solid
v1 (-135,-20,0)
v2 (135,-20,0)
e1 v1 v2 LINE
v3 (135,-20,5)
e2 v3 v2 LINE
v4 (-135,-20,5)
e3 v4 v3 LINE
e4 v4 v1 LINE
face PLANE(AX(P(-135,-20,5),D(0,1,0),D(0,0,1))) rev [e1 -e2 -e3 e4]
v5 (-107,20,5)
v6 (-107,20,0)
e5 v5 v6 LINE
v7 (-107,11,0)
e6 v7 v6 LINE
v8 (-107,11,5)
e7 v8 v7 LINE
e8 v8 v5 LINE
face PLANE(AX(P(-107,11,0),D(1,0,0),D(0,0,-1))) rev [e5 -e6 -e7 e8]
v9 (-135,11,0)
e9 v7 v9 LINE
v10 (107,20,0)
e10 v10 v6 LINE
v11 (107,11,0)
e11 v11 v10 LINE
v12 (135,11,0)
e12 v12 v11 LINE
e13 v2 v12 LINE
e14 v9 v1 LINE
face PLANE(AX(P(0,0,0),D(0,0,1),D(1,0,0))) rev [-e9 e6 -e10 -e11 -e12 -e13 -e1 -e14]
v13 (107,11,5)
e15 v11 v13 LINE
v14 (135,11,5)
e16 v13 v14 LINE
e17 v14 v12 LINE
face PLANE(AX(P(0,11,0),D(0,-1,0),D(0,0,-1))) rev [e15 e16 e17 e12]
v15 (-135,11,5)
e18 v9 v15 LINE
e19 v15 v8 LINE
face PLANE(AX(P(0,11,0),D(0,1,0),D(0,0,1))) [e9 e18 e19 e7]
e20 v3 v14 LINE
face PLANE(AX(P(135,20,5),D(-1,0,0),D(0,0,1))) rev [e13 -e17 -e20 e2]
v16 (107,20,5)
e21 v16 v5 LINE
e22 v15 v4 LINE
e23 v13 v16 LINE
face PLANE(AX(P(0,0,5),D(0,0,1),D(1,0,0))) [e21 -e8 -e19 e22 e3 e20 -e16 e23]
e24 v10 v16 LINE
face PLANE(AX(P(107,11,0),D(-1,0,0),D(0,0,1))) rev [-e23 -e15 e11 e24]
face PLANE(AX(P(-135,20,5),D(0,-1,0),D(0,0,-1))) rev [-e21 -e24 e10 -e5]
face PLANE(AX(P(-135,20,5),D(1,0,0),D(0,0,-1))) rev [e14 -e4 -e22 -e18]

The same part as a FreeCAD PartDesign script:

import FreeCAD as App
import Part
import Sketcher
from FreeCAD import Vector
Q = App.Units.Quantity

doc = App.newDocument("Part")
body = doc.addObject("PartDesign::Body", "Body")

# Sketch on XY plane
sketch1 = body.newObject("Sketcher::SketchObject", "Sketch")
sketch1.AttachmentSupport = (doc.getObject("XY_Plane"), [""])
sketch1.MapMode = "FlatFace"
sketch1.addGeometry([
    Part.LineSegment(Vector(-135, 20, 0), Vector(-135, -20, 0)),
    Part.LineSegment(Vector(-135, -20, 0), Vector(135, -20, 0)),
    Part.LineSegment(Vector(135, -20, 0), Vector(135, 20, 0)),
    Part.LineSegment(Vector(135, 20, 0), Vector(-135, 20, 0)),
], False)
sketch1.addConstraint([
    Sketcher.Constraint("Coincident", 0, 2, 1, 1),
    Sketcher.Constraint("Coincident", 1, 2, 2, 1),
    Sketcher.Constraint("Coincident", 2, 2, 3, 1),
    Sketcher.Constraint("Coincident", 3, 2, 0, 1),
    Sketcher.Constraint("Vertical", 0),
    Sketcher.Constraint("Horizontal", 1),
    Sketcher.Constraint("Vertical", 2),
    Sketcher.Constraint("Horizontal", 3),
    Sketcher.Constraint("Symmetric", 0, 2, 2, 2, -1, 1),
    Sketcher.Constraint("DistanceX", 1, 1, 1, 2, Q("270 mm")),
    Sketcher.Constraint("DistanceY", 0, 2, 0, 1, Q("40 mm")),
])
pad1 = body.newObject("PartDesign::Pad", "Pad")
pad1.Profile = sketch1
pad1.Length = 5

# Sketch on XZ plane
sketch2 = body.newObject("Sketcher::SketchObject", "Sketch001")
sketch2.AttachmentSupport = (doc.getObject("XZ_Plane"), [""])
sketch2.MapMode = "FlatFace"
sketch2.AttachmentOffset = App.Placement(Vector(0, 0, -20), App.Rotation())
sketch2.addGeometry([
    Part.LineSegment(Vector(107, 0, 0), Vector(107, 5, 0)),  # 0
    Part.LineSegment(Vector(107, 5, 0), Vector(135, 5, 0)),  # 1
    Part.LineSegment(Vector(135, 5, 0), Vector(135, 0, 0)),  # 2
    Part.LineSegment(Vector(135, 0, 0), Vector(107, 0, 0)),  # 3
    Part.LineSegment(Vector(-135, 0, 0), Vector(-135, 5, 0)),  # 4
    Part.LineSegment(Vector(-135, 5, 0), Vector(-107, 5, 0)),  # 5
    Part.LineSegment(Vector(-107, 5, 0), Vector(-107, 0, 0)),  # 6
    Part.LineSegment(Vector(-107, 0, 0), Vector(-135, 0, 0)),  # 7
], False)
sketch2.addConstraint([
    Sketcher.Constraint("Coincident", 0, 2, 1, 1),
    Sketcher.Constraint("Coincident", 1, 2, 2, 1),
    Sketcher.Constraint("Coincident", 2, 2, 3, 1),
    Sketcher.Constraint("Coincident", 3, 2, 0, 1),
    Sketcher.Constraint("Coincident", 4, 2, 5, 1),
    Sketcher.Constraint("Coincident", 5, 2, 6, 1),
    Sketcher.Constraint("Coincident", 6, 2, 7, 1),
    Sketcher.Constraint("Coincident", 7, 2, 4, 1),
    Sketcher.Constraint("Vertical", 0),
    Sketcher.Constraint("Horizontal", 1),
    Sketcher.Constraint("Vertical", 2),
    Sketcher.Constraint("Horizontal", 3),
    Sketcher.Constraint("Vertical", 4),
    Sketcher.Constraint("Horizontal", 5),
    Sketcher.Constraint("Vertical", 6),
    Sketcher.Constraint("Horizontal", 7),
    Sketcher.Constraint("Symmetric", 3, 2, 6, 2, -1, 1),
    Sketcher.Constraint("Symmetric", 1, 2, 4, 2, -2),
    Sketcher.Constraint("PointOnObject", 2, 2, -1),
    Sketcher.Constraint("DistanceX", 1, 1, 1, 2, Q("28 mm")),
    Sketcher.Constraint("DistanceY", 0, 1, 0, 2, Q("5 mm")),
    Sketcher.Constraint("DistanceX", -1, 1, 0, 2, Q("107 mm")),
])
pocket1 = body.newObject("PartDesign::Pocket", "Pocket")
pocket1.Profile = sketch2
pocket1.Length = 9
pocket1.Reversed = True

doc.recompute()
